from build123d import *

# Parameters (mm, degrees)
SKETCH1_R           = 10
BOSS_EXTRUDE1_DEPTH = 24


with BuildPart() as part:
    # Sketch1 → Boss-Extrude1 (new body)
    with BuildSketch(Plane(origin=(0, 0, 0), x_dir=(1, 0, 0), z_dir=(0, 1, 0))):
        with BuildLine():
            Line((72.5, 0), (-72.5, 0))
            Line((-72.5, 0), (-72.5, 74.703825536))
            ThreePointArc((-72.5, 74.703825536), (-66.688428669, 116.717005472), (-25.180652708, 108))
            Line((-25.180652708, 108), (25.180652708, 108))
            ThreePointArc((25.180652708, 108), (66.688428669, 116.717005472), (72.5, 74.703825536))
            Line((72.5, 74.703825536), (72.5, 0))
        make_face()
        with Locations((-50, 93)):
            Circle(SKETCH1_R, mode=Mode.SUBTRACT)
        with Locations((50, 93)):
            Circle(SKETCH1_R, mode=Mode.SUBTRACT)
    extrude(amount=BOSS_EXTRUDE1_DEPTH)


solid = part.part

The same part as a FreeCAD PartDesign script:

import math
import FreeCAD as App
import Part
import Sketcher

V = App.Vector

doc = App.newDocument("Part")
body = doc.addObject("PartDesign::Body", "Body")

sketch1 = doc.addObject("Sketcher::SketchObject", "Sketch")
body.addObject(sketch1)
sketch1.AttachmentSupport = (doc.XZ_Plane, [""])
sketch1.MapMode = "FlatFace"
sketch1.addGeometry([
    Part.LineSegment(V(-72, 0, 0), V(72, 0, 0)),
    Part.LineSegment(V(72, 0, 0), V(72, -75, 0)),
    Part.ArcOfCircle(Part.Circle(V(50, -93, 0), V(0, 0, 1), 29), math.radians(-149), math.radians(39)),
    Part.LineSegment(V(25, -108, 0), V(-25, -108, 0)),
    Part.ArcOfCircle(Part.Circle(V(-50, -93, 0), V(0, 0, 1), 29), math.radians(141), math.radians(329)),
    Part.LineSegment(V(-72, -75, 0), V(-72, 0, 0)),
    Part.Circle(V(50, -93, 0), V(0, 0, 1), 10),
    Part.Circle(V(-50, -93, 0), V(0, 0, 1), 10),
], False)
sketch1.addConstraint([
    Sketcher.Constraint("Coincident", 0, 2, 1, 1),
    Sketcher.Constraint("Coincident", 1, 2, 2, 2),
    Sketcher.Constraint("Coincident", 2, 1, 3, 1),
    Sketcher.Constraint("Coincident", 3, 2, 4, 2),
    Sketcher.Constraint("Coincident", 4, 1, 5, 1),
    Sketcher.Constraint("Coincident", 5, 2, 0, 1),
    Sketcher.Constraint("Horizontal", 0),
    Sketcher.Constraint("Vertical", 1),
    Sketcher.Constraint("Horizontal", 3),
    Sketcher.Constraint("Vertical", 5),
    Sketcher.Constraint("Coincident", 6, 3, 2, 3),
    Sketcher.Constraint("Coincident", 7, 3, 4, 3),
    Sketcher.Constraint("Equal", 2, 4),
    Sketcher.Constraint("Equal", 6, 7),
    Sketcher.Constraint("Symmetric", 0, 2, 5, 2, -1, 1),
    Sketcher.Constraint("Symmetric", 2, 3, 4, 3, -2),
    Sketcher.Constraint("Diameter", 6, 20.0),
    Sketcher.Constraint("Radius", 2, 29.0),
    Sketcher.Constraint("DistanceX", 0, 1, 0, 2, 145.0),
    Sketcher.Constraint("DistanceX", -1, 1, 2, 3, 50.0),
    Sketcher.Constraint("DistanceY", 2, 3, -1, 1, 93.0),
    Sketcher.Constraint("DistanceY", 2, 1, -1, 1, 108.0),
])
pad1 = doc.addObject("PartDesign::Pad", "Pad")
body.addObject(pad1)
pad1.Profile = sketch1
pad1.Length = 24
pad1.Reversed = True

doc.recompute()
